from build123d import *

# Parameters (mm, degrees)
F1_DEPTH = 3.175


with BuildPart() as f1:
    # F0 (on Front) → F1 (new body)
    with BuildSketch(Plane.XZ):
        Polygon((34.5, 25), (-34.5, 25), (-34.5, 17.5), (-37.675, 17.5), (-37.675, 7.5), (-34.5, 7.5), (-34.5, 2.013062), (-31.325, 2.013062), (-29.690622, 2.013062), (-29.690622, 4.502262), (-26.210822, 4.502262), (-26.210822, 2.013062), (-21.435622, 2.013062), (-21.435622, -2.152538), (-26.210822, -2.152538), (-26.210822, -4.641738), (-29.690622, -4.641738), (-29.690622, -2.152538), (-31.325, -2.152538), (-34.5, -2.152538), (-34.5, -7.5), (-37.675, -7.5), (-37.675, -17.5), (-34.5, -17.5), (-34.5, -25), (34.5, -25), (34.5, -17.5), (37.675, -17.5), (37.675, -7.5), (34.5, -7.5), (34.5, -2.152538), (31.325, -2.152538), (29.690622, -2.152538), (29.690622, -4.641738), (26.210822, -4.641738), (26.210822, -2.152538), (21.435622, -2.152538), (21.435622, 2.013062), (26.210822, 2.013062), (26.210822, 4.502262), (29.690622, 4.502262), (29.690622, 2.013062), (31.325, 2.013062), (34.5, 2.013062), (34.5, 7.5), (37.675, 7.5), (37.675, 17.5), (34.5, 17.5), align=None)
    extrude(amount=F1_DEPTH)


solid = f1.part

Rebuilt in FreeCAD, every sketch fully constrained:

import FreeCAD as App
import Part
import Sketcher
Q = App.Units.Quantity


def add_polygon(sketch, points):
    """Adds a closed chain of lines whose ends are joined by coincident constraints."""
    first, n = sketch.GeometryCount, len(points)
    for a, b in zip(points, points[1:] + points[:1]):
        sketch.addGeometry(Part.LineSegment(App.Vector(*a, 0), App.Vector(*b, 0)), False)
    for i in range(n):
        sketch.addConstraint(Sketcher.Constraint("Coincident", first + i, 2, first + (i + 1) % n, 1))

doc = App.newDocument("Part")
body = doc.addObject("PartDesign::Body", "Body")

# Sketch on XZ plane
sketch1 = body.newObject("Sketcher::SketchObject", "Sketch")
sketch1.AttachmentSupport = (doc.getObject("XZ_Plane"), [""])
sketch1.MapMode = "FlatFace"
add_polygon(sketch1, [(34.5, 25), (-34.5, 25), (-34.5, 17.5), (-37.7, 17.5), (-37.7, 7.5), (-34.5, 7.5), (-34.5, 2), (-29.7, 2), (-29.7, 4.5), (-26.2, 4.5), (-26.2, 2), (-21.4, 2), (-21.4, -2.2), (-26.2, -2.2), (-26.2, -4.6), (-29.7, -4.6), (-29.7, -2.2), (-34.5, -2.2), (-34.5, -7.5), (-37.7, -7.5), (-37.7, -17.5), (-34.5, -17.5), (-34.5, -25), (34.5, -25), (34.5, -17.5), (37.7, -17.5), (37.7, -7.5), (34.5, -7.5), (34.5, -2.2), (29.7, -2.2), (29.7, -4.6), (26.2, -4.6), (26.2, -2.2), (21.4, -2.2), (21.4, 2), (26.2, 2), (26.2, 4.5), (29.7, 4.5), (29.7, 2), (34.5, 2), (34.5, 7.5), (37.7, 7.5), (37.7, 17.5), (34.5, 17.5)])  # lines 0-43
sketch1.addConstraint([
    Sketcher.Constraint("Horizontal", 0),
    Sketcher.Constraint("Vertical", 1),
    Sketcher.Constraint("Horizontal", 2),
    Sketcher.Constraint("Vertical", 3),
    Sketcher.Constraint("Horizontal", 4),
    Sketcher.Constraint("Vertical", 5),
    Sketcher.Constraint("Horizontal", 6),
    Sketcher.Constraint("Vertical", 7),
    Sketcher.Constraint("Horizontal", 8),
    Sketcher.Constraint("Vertical", 9),
    Sketcher.Constraint("Horizontal", 10),
    Sketcher.Constraint("Vertical", 11),
    Sketcher.Constraint("Horizontal", 12),
    Sketcher.Constraint("Vertical", 13),
    Sketcher.Constraint("Horizontal", 14),
    Sketcher.Constraint("Vertical", 15),
    Sketcher.Constraint("Horizontal", 16),
    Sketcher.Constraint("Vertical", 17),
    Sketcher.Constraint("Horizontal", 18),
    Sketcher.Constraint("Vertical", 19),
    Sketcher.Constraint("Horizontal", 20),
    Sketcher.Constraint("Vertical", 21),
    Sketcher.Constraint("Horizontal", 22),
    Sketcher.Constraint("Vertical", 23),
    Sketcher.Constraint("Horizontal", 24),
    Sketcher.Constraint("Vertical", 25),
    Sketcher.Constraint("Horizontal", 26),
    Sketcher.Constraint("Vertical", 27),
    Sketcher.Constraint("Horizontal", 28),
    Sketcher.Constraint("Vertical", 29),
    Sketcher.Constraint("Horizontal", 30),
    Sketcher.Constraint("Vertical", 31),
    Sketcher.Constraint("Horizontal", 32),
    Sketcher.Constraint("Vertical", 33),
    Sketcher.Constraint("Horizontal", 34),
    Sketcher.Constraint("Vertical", 35),
    Sketcher.Constraint("Horizontal", 36),
    Sketcher.Constraint("Vertical", 37),
    Sketcher.Constraint("Horizontal", 38),
    Sketcher.Constraint("Vertical", 39),
    Sketcher.Constraint("Horizontal", 40),
    Sketcher.Constraint("Vertical", 41),
    Sketcher.Constraint("Horizontal", 42),
    Sketcher.Constraint("Vertical", 43),
    Sketcher.Constraint("Symmetric", 0, 2, 22, 2, -1, 1),
    Sketcher.Constraint("Symmetric", 2, 2, 24, 2, -1, 1),
    Sketcher.Constraint("Symmetric", 4, 2, 26, 2, -1, 1),
    Sketcher.Constraint("Symmetric", 17, 2, 39, 2, -1, 1),
    Sketcher.Constraint("Symmetric", 19, 2, 41, 2, -1, 1),
    Sketcher.Constraint("Symmetric", 20, 2, 23, 2, -2),
    Sketcher.Constraint("Symmetric", 18, 2, 25, 2, -2),
    Sketcher.Constraint("Symmetric", 16, 2, 27, 2, -2),
    Sketcher.Constraint("Symmetric", 14, 2, 29, 2, -2),
    Sketcher.Constraint("Symmetric", 12, 2, 31, 2, -2),
    Sketcher.Constraint("Symmetric", 10, 2, 33, 2, -2),
    Sketcher.Constraint("Symmetric", 8, 2, 35, 2, -2),
    Sketcher.Constraint("Symmetric", 6, 2, 37, 2, -2),
    Sketcher.Constraint("Horizontal", 6, 2, 9, 2),
    Sketcher.Constraint("Horizontal", 12, 2, 15, 2),
    Sketcher.Constraint("Vertical", 1, 2, 4, 2),
    Sketcher.Constraint("Vertical", 9, 2, 12, 2),
    Sketcher.Constraint("Vertical", 7, 2, 14, 2),
    Sketcher.Constraint("Vertical", 39, 2, 42, 2),
    Sketcher.Constraint("Equal", 9, 13),
    Sketcher.Constraint("DistanceX", 2, 2, 2, 1, Q("0.125 in")),
    Sketcher.Constraint("DistanceX", 8, 1, 8, 2, Q("0.137 in")),
    Sketcher.Constraint("DistanceX", 10, 1, 10, 2, Q("0.188 in")),
    Sketcher.Constraint("DistanceY", 7, 1, 7, 2, Q("0.098 in")),
    Sketcher.Constraint("DistanceY", 11, 2, 11, 1, Q("0.164 in")),
    Sketcher.Constraint("DistanceX", 0, 2, 0, 1, Q("69 mm")),
    Sketcher.Constraint("DistanceY", 1, 2, 1, 1, Q("7.5 mm")),
    Sketcher.Constraint("DistanceY", 3, 2, 3, 1, Q("10 mm")),
    Sketcher.Constraint("DistanceY", 5, 2, 5, 1, Q("5.486938 mm")),
    Sketcher.Constraint("DistanceY", -1, 1, 0, 2, Q("25 mm")),
    Sketcher.Constraint("DistanceX", 6, 1, 6, 2, Q("4.809378 mm")),
])
pad1 = body.newObject("PartDesign::Pad", "Pad")
pad1.Profile = sketch1
pad1.Length = Q("0.125 in")

doc.recompute()
